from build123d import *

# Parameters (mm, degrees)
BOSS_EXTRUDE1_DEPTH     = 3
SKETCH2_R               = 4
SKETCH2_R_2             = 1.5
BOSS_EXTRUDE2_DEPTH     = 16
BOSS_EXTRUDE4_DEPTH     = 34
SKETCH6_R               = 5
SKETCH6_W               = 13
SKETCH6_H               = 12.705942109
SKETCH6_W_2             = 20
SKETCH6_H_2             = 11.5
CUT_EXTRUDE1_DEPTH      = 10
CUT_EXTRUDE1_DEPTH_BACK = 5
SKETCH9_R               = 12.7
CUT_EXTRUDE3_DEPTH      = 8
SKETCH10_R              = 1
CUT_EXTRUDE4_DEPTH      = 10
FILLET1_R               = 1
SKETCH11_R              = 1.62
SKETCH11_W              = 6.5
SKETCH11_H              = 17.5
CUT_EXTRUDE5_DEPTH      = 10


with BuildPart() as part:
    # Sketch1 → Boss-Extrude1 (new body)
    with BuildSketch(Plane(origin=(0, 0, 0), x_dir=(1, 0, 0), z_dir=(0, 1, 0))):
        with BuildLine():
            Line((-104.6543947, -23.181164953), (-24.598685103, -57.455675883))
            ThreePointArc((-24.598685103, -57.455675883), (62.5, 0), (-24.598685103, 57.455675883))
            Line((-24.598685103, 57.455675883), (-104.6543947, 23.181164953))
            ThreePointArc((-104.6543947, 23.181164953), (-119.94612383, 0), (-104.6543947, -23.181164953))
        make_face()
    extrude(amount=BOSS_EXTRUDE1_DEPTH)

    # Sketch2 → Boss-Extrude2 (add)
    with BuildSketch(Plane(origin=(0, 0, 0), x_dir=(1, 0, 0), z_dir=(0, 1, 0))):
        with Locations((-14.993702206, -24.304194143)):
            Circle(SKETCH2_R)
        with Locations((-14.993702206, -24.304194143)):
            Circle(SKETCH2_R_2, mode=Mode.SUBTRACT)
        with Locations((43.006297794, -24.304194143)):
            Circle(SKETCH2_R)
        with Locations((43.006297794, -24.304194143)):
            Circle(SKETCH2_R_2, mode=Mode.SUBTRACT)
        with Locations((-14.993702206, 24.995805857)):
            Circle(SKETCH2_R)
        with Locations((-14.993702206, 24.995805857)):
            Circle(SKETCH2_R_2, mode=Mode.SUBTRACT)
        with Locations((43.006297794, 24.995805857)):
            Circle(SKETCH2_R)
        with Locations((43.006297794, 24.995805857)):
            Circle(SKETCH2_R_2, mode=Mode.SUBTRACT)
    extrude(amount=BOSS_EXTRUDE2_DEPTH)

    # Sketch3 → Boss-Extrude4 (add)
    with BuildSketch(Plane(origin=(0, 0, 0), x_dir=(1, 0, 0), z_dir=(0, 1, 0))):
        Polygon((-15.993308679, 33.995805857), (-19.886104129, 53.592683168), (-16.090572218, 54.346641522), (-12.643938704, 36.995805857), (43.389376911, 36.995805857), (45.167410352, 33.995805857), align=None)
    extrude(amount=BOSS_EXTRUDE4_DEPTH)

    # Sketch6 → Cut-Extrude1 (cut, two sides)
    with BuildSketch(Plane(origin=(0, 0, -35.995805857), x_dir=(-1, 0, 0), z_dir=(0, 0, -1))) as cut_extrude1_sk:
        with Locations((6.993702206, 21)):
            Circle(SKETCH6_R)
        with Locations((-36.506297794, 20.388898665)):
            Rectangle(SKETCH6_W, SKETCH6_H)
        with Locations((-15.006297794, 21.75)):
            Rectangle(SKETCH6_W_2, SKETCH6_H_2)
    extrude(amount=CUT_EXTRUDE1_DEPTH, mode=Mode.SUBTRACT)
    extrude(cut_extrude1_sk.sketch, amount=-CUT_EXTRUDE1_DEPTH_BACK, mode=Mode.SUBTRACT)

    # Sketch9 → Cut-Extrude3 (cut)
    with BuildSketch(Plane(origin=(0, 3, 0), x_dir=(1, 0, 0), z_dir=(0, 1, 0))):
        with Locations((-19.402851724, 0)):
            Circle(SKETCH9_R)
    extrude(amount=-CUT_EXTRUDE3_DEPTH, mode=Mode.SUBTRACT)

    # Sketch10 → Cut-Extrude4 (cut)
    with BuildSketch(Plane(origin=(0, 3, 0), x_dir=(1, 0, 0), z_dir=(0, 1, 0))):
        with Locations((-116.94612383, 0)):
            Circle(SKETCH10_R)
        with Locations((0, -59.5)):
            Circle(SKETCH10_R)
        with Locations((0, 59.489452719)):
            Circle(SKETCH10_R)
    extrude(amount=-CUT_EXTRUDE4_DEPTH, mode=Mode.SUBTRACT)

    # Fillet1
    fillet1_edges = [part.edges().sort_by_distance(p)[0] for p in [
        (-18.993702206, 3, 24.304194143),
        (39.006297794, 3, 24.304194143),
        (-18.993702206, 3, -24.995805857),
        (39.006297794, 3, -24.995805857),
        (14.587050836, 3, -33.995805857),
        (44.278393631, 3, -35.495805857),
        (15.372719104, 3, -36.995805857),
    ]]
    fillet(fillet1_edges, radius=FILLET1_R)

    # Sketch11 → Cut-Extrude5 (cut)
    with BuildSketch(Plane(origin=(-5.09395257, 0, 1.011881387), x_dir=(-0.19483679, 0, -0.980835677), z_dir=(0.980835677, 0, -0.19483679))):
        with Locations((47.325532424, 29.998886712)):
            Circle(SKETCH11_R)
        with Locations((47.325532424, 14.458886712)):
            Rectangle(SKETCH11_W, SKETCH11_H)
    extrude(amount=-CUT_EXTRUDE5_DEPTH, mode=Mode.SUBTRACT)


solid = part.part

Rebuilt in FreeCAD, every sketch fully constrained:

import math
import FreeCAD as App
import Part
import Sketcher

V = App.Vector
Q = App.Units.Quantity


def edges_at(feature, points):
    """Names of the edges that pass closest to the given points."""
    edges = feature.Shape.Edges
    near = lambda p: min(range(len(edges)), key=lambda i: edges[i].distToShape(Part.Vertex(*p))[0])
    return sorted({f"Edge{near(p) + 1}" for p in points})

doc = App.newDocument("Part")
body = doc.addObject("PartDesign::Body", "Body")

# Sketch on XZ plane
sketch1 = body.newObject("Sketcher::SketchObject", "Sketch")
sketch1.AttachmentSupport = (doc.getObject("XZ_Plane"), [""])
sketch1.MapMode = "FlatFace"
sketch1.addGeometry([
    Part.LineSegment(V(-105, 23, 0), V(-25, 57, 0)),
    Part.ArcOfCircle(Part.Circle(V(0, 0, 0), V(0, 0, 1), 62), math.radians(-113), math.radians(113)),
    Part.LineSegment(V(-25, -57, 0), V(-105, -23, 0)),
    Part.ArcOfCircle(Part.Circle(V(-95, 0, 0), V(0, 0, 1), 25), math.radians(113), math.radians(247)),
], False)
sketch1.addConstraint([
    Sketcher.Constraint("Tangent", 0, 2, 1, 2),
    Sketcher.Constraint("Tangent", 1, 1, 2, 1),
    Sketcher.Constraint("Tangent", 2, 2, 3, 2),
    Sketcher.Constraint("Tangent", 3, 1, 0, 1),
    Sketcher.Constraint("Coincident", 1, 3, -1, 1),
    Sketcher.Constraint("PointOnObject", 3, 3, -1),
    Sketcher.Constraint("Radius", 1, Q("62.5 mm")),
    Sketcher.Constraint("Radius", 3, Q("25.216357 mm")),
    Sketcher.Constraint("DistanceY", 1, 1, 0, 2, Q("114.911352 mm")),
])
pad1 = body.newObject("PartDesign::Pad", "Pad")
pad1.Profile = sketch1
pad1.Length = 3
pad1.Reversed = True

# Sketch on XZ plane
sketch2 = body.newObject("Sketcher::SketchObject", "Sketch001")
sketch2.AttachmentSupport = (doc.getObject("XZ_Plane"), [""])
sketch2.MapMode = "FlatFace"
sketch2.addGeometry([
    Part.Circle(V(-15, 24.3, 0), V(0, 0, 1), 4),  # 0
    Part.Circle(V(-15, 24.3, 0), V(0, 0, 1), 1.5),  # 1
    Part.Circle(V(43, 24.3, 0), V(0, 0, 1), 4),  # 2
    Part.Circle(V(43, 24.3, 0), V(0, 0, 1), 1.5),  # 3
    Part.Circle(V(-15, -25, 0), V(0, 0, 1), 4),  # 4
    Part.Circle(V(-15, -25, 0), V(0, 0, 1), 1.5),  # 5
    Part.Circle(V(43, -25, 0), V(0, 0, 1), 4),  # 6
    Part.Circle(V(43, -25, 0), V(0, 0, 1), 1.5),  # 7
], False)
sketch2.addConstraint([
    Sketcher.Constraint("Coincident", 1, 3, 0, 3),
    Sketcher.Constraint("Coincident", 3, 3, 2, 3),
    Sketcher.Constraint("Coincident", 5, 3, 4, 3),
    Sketcher.Constraint("Coincident", 7, 3, 6, 3),
    Sketcher.Constraint("Equal", 0, 2),
    Sketcher.Constraint("Equal", 1, 3),
    Sketcher.Constraint("Equal", 2, 4),
    Sketcher.Constraint("Equal", 3, 5),
    Sketcher.Constraint("Equal", 4, 6),
    Sketcher.Constraint("Equal", 5, 7),
    Sketcher.Constraint("Horizontal", 1, 3, 2, 3),
    Sketcher.Constraint("Horizontal", 5, 3, 6, 3),
    Sketcher.Constraint("Vertical", 1, 3, 4, 3),
    Sketcher.Constraint("Vertical", 3, 3, 6, 3),
    Sketcher.Constraint("Diameter", 0, Q("8 mm")),
    Sketcher.Constraint("Diameter", 1, Q("3 mm")),
    Sketcher.Constraint("DistanceX", 0, 3, 2, 3, Q("58 mm")),
    Sketcher.Constraint("DistanceY", 4, 3, 0, 3, Q("49.3 mm")),
    Sketcher.Constraint("DistanceX", 0, 3, -1, 1, Q("14.993702 mm")),
    Sketcher.Constraint("DistanceY", -1, 1, 0, 3, Q("24.304194 mm")),
])
pad2 = body.newObject("PartDesign::Pad", "Pad001")
pad2.Profile = sketch2
pad2.Length = 16
pad2.Reversed = True

# Sketch on XZ plane
sketch3 = body.newObject("Sketcher::SketchObject", "Sketch002")
sketch3.AttachmentSupport = (doc.getObject("XZ_Plane"), [""])
sketch3.MapMode = "FlatFace"
sketch3.addGeometry([
    Part.LineSegment(V(-19.9, -53.6, 0), V(-16, -34, 0)),  # 0
    Part.LineSegment(V(-16, -34, 0), V(45.2, -34, 0)),  # 1
    Part.LineSegment(V(45.2, -34, 0), V(43.4, -37, 0)),  # 2
    Part.LineSegment(V(43.4, -37, 0), V(-12.6, -37, 0)),  # 3
    Part.LineSegment(V(-12.6, -37, 0), V(-16.1, -54.3, 0)),  # 4
    Part.LineSegment(V(-16.1, -54.3, 0), V(-19.9, -53.6, 0)),  # 5
], False)
sketch3.addConstraint([
    Sketcher.Constraint("Coincident", 0, 2, 1, 1),
    Sketcher.Constraint("Coincident", 1, 2, 2, 1),
    Sketcher.Constraint("Coincident", 2, 2, 3, 1),
    Sketcher.Constraint("Coincident", 3, 2, 4, 1),
    Sketcher.Constraint("Coincident", 4, 2, 5, 1),
    Sketcher.Constraint("Coincident", 5, 2, 0, 1),
    Sketcher.Constraint("Horizontal", 1),
    Sketcher.Constraint("Horizontal", 3),
    Sketcher.Constraint("Parallel", 0, 4),
    Sketcher.Constraint("Perpendicular", 4, 5),
    Sketcher.Constraint("DistanceY", 2, 2, 1, 2, Q("3 mm")),
    Sketcher.Constraint("DistanceX", 1, 1, 1, 2, Q("61.160719 mm")),
    Sketcher.Constraint("Distance", 2, Q("3.48732 mm")),
    Sketcher.Constraint("Distance", 4, Q("17.68985 mm")),
    Sketcher.Constraint("Distance", 5, Q("3.869692 mm")),
    Sketcher.Constraint("DistanceX", 3, 2, 3, 1, Q("56.033316 mm")),
    Sketcher.Constraint("DistanceX", 0, 2, -1, 1, Q("15.993309 mm")),
    Sketcher.Constraint("DistanceY", 4, 2, -1, 1, Q("54.346642 mm")),
])
pad3 = body.newObject("PartDesign::Pad", "Pad002")
pad3.Profile = sketch3
pad3.Length = 34
pad3.Reversed = True

# Sketch on XY plane
sketch4 = body.newObject("Sketcher::SketchObject", "Sketch003")
sketch4.AttachmentSupport = (doc.getObject("XY_Plane"), [""])
sketch4.MapMode = "FlatFace"
sketch4.AttachmentOffset = App.Placement(V(0, 0, -35.995806), App.Rotation())
sketch4.addGeometry([
    Part.Circle(V(-7, 21, 0), V(0, 0, 1), 5),  # 0
    Part.LineSegment(V(43, 27, 0), V(43, 14, 0)),  # 1
    Part.LineSegment(V(43, 14, 0), V(30, 14, 0)),  # 2
    Part.LineSegment(V(30, 14, 0), V(30, 27, 0)),  # 3
    Part.LineSegment(V(30, 27, 0), V(43, 27, 0)),  # 4
    Part.LineSegment(V(25, 28, 0), V(25, 16, 0)),  # 5
    Part.LineSegment(V(25, 16, 0), V(5, 16, 0)),  # 6
    Part.LineSegment(V(5, 16, 0), V(5, 28, 0)),  # 7
    Part.LineSegment(V(5, 28, 0), V(25, 28, 0)),  # 8
], False)
sketch4.addConstraint([
    Sketcher.Constraint("Coincident", 1, 2, 2, 1),
    Sketcher.Constraint("Coincident", 2, 2, 3, 1),
    Sketcher.Constraint("Coincident", 3, 2, 4, 1),
    Sketcher.Constraint("Coincident", 4, 2, 1, 1),
    Sketcher.Constraint("Coincident", 5, 2, 6, 1),
    Sketcher.Constraint("Coincident", 6, 2, 7, 1),
    Sketcher.Constraint("Coincident", 7, 2, 8, 1),
    Sketcher.Constraint("Coincident", 8, 2, 5, 1),
    Sketcher.Constraint("Vertical", 1),
    Sketcher.Constraint("Horizontal", 2),
    Sketcher.Constraint("Vertical", 3),
    Sketcher.Constraint("Horizontal", 4),
    Sketcher.Constraint("Vertical", 5),
    Sketcher.Constraint("Horizontal", 6),
    Sketcher.Constraint("Vertical", 7),
    Sketcher.Constraint("Horizontal", 8),
    Sketcher.Constraint("Diameter", 0, Q("10 mm")),
    Sketcher.Constraint("DistanceX", 2, 2, 2, 1, Q("13 mm")),
    Sketcher.Constraint("DistanceX", 6, 2, 6, 1, Q("20 mm")),
    Sketcher.Constraint("DistanceY", 5, 2, 5, 1, Q("11.5 mm")),
    Sketcher.Constraint("DistanceY", -1, 1, 0, 3, Q("21 mm")),
    Sketcher.Constraint("DistanceY", -1, 1, 5, 2, Q("16 mm")),
    Sketcher.Constraint("DistanceX", 0, 3, 1, 2, Q("50 mm")),
    Sketcher.Constraint("DistanceX", 5, 2, 2, 2, Q("5 mm")),
    Sketcher.Constraint("DistanceY", 1, 2, 1, 1, Q("12.705942 mm")),
    Sketcher.Constraint("DistanceY", -1, 1, 3, 2, Q("26.74187 mm")),
    Sketcher.Constraint("DistanceX", 0, 3, -1, 1, Q("6.993702 mm")),
])
pocket1 = body.newObject("PartDesign::Pocket", "Pocket")
pocket1.Profile = sketch4
pocket1.Type = "TwoLengths"
pocket1.Length = 10
pocket1.Length2 = 5

# Sketch on XZ plane
sketch5 = body.newObject("Sketcher::SketchObject", "Sketch004")
sketch5.AttachmentSupport = (doc.getObject("XZ_Plane"), [""])
sketch5.MapMode = "FlatFace"
sketch5.AttachmentOffset = App.Placement(V(0, 0, -3), App.Rotation())
sketch5.addGeometry(Part.Circle(V(-19, 0, 0), V(0, 0, 1), 13), False)
sketch5.addConstraint([
    Sketcher.Constraint("PointOnObject", 0, 3, -1),
    Sketcher.Constraint("Diameter", 0, Q("25.4 mm")),
    Sketcher.Constraint("DistanceX", 0, 3, -1, 1, Q("19.402852 mm")),
])
pocket2 = body.newObject("PartDesign::Pocket", "Pocket001")
pocket2.Profile = sketch5
pocket2.Length = 8
pocket2.Reversed = True

# Sketch on XZ plane
sketch6 = body.newObject("Sketcher::SketchObject", "Sketch005")
sketch6.AttachmentSupport = (doc.getObject("XZ_Plane"), [""])
sketch6.MapMode = "FlatFace"
sketch6.AttachmentOffset = App.Placement(V(0, 0, -3), App.Rotation())
sketch6.addGeometry([
    Part.Circle(V(-116.9, 0, 0), V(0, 0, 1), 1),
    Part.Circle(V(0, 59.5, 0), V(0, 0, 1), 1),
    Part.Circle(V(0, -59.5, 0), V(0, 0, 1), 1),
], False)
sketch6.addConstraint([
    Sketcher.Constraint("Equal", 0, 1),
    Sketcher.Constraint("Equal", 1, 2),
    Sketcher.Constraint("PointOnObject", 0, 3, -1),
    Sketcher.Constraint("PointOnObject", 1, 3, -2),
    Sketcher.Constraint("PointOnObject", 2, 3, -2),
    Sketcher.Constraint("Diameter", 0, Q("2 mm")),
    Sketcher.Constraint("DistanceY", -1, 1, 1, 3, Q("59.5 mm")),
    Sketcher.Constraint("DistanceX", 0, 3, -1, 1, Q("116.946124 mm")),
    Sketcher.Constraint("DistanceY", 2, 3, -1, 1, Q("59.489453 mm")),
])
pocket3 = body.newObject("PartDesign::Pocket", "Pocket002")
pocket3.Profile = sketch6
pocket3.Length = 10
pocket3.Reversed = True
doc.recompute()

fillet = body.newObject("PartDesign::Fillet", "Fillet")
fillet.Base = (pocket3, edges_at(pocket3, [
    (-18.994, 3, 24.304),
    (39.006, 3, 24.304),
    (-18.994, 3, -24.996),
    (39.006, 3, -24.996),
    (14.587, 3, -33.996),
    (44.278, 3, -35.496),
    (15.373, 3, -36.996),
]))
fillet.Radius = 1

# Sketch on an angled plane
sketch7 = body.newObject("Sketcher::SketchObject", "Sketch006")
sketch7.Placement = App.Placement(V(-5.093953, 0, 1.011881), App.Rotation(V(-0.19483679, 0, -0.980835677), V(0, 1, 0), V(0.980835677, 0, -0.19483679), "ZXY"))
sketch7.addGeometry([
    Part.Circle(V(47.3, 30, 0), V(0, 0, 1), 1.6),  # 0
    Part.LineSegment(V(44.1, 23.2, 0), V(44.1, 5.7, 0)),  # 1
    Part.LineSegment(V(44.1, 5.7, 0), V(50.6, 5.7, 0)),  # 2
    Part.LineSegment(V(50.6, 5.7, 0), V(50.6, 23.2, 0)),  # 3
    Part.LineSegment(V(50.6, 23.2, 0), V(44.1, 23.2, 0)),  # 4
], False)
sketch7.addConstraint([
    Sketcher.Constraint("Coincident", 1, 2, 2, 1),
    Sketcher.Constraint("Coincident", 2, 2, 3, 1),
    Sketcher.Constraint("Coincident", 3, 2, 4, 1),
    Sketcher.Constraint("Coincident", 4, 2, 1, 1),
    Sketcher.Constraint("Vertical", 1),
    Sketcher.Constraint("Horizontal", 2),
    Sketcher.Constraint("Vertical", 3),
    Sketcher.Constraint("Horizontal", 4),
    Sketcher.Constraint("Diameter", 0, Q("3.24 mm")),
    Sketcher.Constraint("DistanceX", 2, 1, 2, 2, Q("6.5 mm")),
    Sketcher.Constraint("DistanceY", 1, 2, 1, 1, Q("17.5 mm")),
    Sketcher.Constraint("DistanceX", 1, 2, 0, 3, Q("3.25 mm")),
    Sketcher.Constraint("DistanceY", 1, 2, 0, 3, Q("24.29 mm")),
    Sketcher.Constraint("DistanceX", -1, 1, 0, 3, Q("47.325532 mm")),
    Sketcher.Constraint("DistanceY", -1, 1, 0, 3, Q("29.998887 mm")),
])
pocket4 = body.newObject("PartDesign::Pocket", "Pocket003")
pocket4.Profile = sketch7
pocket4.Length = 10

doc.recompute()
